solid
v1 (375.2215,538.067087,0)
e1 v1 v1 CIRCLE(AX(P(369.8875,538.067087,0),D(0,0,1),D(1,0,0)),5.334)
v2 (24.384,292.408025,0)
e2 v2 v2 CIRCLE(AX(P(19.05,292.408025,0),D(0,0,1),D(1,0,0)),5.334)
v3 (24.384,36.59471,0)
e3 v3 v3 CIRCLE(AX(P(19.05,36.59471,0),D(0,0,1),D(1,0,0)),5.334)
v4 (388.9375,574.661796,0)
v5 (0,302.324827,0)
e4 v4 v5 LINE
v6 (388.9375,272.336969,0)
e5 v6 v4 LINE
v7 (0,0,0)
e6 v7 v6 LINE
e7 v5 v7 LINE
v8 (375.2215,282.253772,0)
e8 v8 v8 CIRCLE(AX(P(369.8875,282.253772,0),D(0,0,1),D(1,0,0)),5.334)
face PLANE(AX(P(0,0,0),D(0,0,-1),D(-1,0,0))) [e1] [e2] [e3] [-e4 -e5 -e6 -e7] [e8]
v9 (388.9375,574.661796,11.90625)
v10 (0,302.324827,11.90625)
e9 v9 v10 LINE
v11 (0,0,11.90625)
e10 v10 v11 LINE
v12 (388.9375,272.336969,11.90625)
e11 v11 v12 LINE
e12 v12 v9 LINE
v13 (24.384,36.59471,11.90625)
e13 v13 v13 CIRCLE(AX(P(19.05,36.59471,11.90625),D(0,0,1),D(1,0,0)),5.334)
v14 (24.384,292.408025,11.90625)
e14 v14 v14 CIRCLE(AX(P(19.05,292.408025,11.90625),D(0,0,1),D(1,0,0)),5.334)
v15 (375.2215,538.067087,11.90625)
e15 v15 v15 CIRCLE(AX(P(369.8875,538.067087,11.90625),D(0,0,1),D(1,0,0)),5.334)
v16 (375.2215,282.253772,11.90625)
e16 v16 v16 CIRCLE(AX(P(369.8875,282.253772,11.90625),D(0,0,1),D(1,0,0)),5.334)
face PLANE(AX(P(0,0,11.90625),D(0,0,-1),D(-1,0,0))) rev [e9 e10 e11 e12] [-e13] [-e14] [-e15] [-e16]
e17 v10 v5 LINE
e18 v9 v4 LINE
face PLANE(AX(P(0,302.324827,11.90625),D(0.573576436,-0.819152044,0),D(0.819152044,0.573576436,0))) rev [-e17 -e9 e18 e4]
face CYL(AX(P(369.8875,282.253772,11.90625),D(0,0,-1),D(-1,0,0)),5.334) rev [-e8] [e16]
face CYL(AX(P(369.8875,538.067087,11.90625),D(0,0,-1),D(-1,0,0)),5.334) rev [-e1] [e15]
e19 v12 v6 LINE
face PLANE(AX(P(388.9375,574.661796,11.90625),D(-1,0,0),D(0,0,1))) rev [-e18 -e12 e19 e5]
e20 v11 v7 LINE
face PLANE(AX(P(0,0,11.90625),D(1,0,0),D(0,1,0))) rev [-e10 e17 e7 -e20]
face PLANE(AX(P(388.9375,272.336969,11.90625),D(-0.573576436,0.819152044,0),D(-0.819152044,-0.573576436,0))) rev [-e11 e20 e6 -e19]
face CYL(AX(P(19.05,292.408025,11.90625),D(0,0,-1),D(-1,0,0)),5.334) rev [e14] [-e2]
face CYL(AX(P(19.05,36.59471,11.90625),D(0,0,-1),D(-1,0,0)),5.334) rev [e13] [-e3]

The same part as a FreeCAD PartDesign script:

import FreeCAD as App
import Part
import Sketcher
from FreeCAD import Vector
Q = App.Units.Quantity


def add_polygon(sketch, points):
    """Adds a closed chain of lines whose ends are joined by coincident constraints."""
    first, n = sketch.GeometryCount, len(points)
    for a, b in zip(points, points[1:] + points[:1]):
        sketch.addGeometry(Part.LineSegment(App.Vector(*a, 0), App.Vector(*b, 0)), False)
    for i in range(n):
        sketch.addConstraint(Sketcher.Constraint("Coincident", first + i, 2, first + (i + 1) % n, 1))

doc = App.newDocument("Part")
body = doc.addObject("PartDesign::Body", "Body")

# Sketch on XY plane
sketch1 = body.newObject("Sketcher::SketchObject", "Sketch")
sketch1.AttachmentSupport = (doc.getObject("XY_Plane"), [""])
sketch1.MapMode = "FlatFace"
add_polygon(sketch1, [(0, 302.324827), (0, 0), (388.9375, 272.336969), (388.9375, 574.661796)])  # lines 0-3
sketch1.addGeometry(Part.Circle(Vector(369.8875, 282.253772, 0), Vector(0, 0, 1), 5.334), False)  # 4
sketch1.addGeometry(Part.Circle(Vector(19.05, 36.59471, 0), Vector(0, 0, 1), 5.334), False)  # 5
sketch1.addGeometry(Part.Circle(Vector(369.8875, 538.067087, 0), Vector(0, 0, 1), 5.334), False)  # 6
sketch1.addGeometry(Part.Circle(Vector(19.05, 292.408025, 0), Vector(0, 0, 1), 5.334), False)  # 7
sketch1.addConstraint(Sketcher.Constraint("Vertical", 0))
sketch1.addConstraint(Sketcher.Constraint("Vertical", 2))
sketch1.addConstraint(Sketcher.Constraint("Coincident", 0, 2, -1, 1))
sketch1.addConstraint(Sketcher.Constraint("Equal", 4, 5))
sketch1.addConstraint(Sketcher.Constraint("Equal", 5, 6))
sketch1.addConstraint(Sketcher.Constraint("Equal", 6, 7))
sketch1.addConstraint(Sketcher.Constraint("Parallel", 1, 3))
sketch1.addConstraint(Sketcher.Constraint("Vertical", 4, 3, 6, 3))
sketch1.addConstraint(Sketcher.Constraint("Vertical", 5, 3, 7, 3))
sketch1.addConstraint(Sketcher.Constraint("Diameter", 4, Q("0.42 in")))
sketch1.addConstraint(Sketcher.Constraint("Angle", 1, Q("35 deg")))
sketch1.addConstraint(Sketcher.Constraint("DistanceX", -1, 1, 5, 3, Q("0.75 in")))
sketch1.addConstraint(Sketcher.Constraint("DistanceX", 4, 3, 1, 2, Q("0.75 in")))
sketch1.addConstraint(Sketcher.Constraint("DistanceX", -1, 1, 4, 3, Q("14.5625 in")))
sketch1.addConstraint(Sketcher.Constraint("DistanceY", 0, 2, 0, 1, 302.324827))
sketch1.addConstraint(Sketcher.Constraint("DistanceY", -1, 1, 4, 3, 282.253772))
sketch1.addConstraint(Sketcher.Constraint("DistanceY", -1, 1, 5, 3, 36.59471))
sketch1.addConstraint(Sketcher.Constraint("DistanceY", 6, 3, 2, 2, 36.59471))
sketch1.addConstraint(Sketcher.Constraint("DistanceY", 7, 3, 2, 2, 282.253772))
pad1 = body.newObject("PartDesign::Pad", "Pad")
pad1.Profile = sketch1
pad1.Length = Q("0.46875 in")

doc.recompute()
